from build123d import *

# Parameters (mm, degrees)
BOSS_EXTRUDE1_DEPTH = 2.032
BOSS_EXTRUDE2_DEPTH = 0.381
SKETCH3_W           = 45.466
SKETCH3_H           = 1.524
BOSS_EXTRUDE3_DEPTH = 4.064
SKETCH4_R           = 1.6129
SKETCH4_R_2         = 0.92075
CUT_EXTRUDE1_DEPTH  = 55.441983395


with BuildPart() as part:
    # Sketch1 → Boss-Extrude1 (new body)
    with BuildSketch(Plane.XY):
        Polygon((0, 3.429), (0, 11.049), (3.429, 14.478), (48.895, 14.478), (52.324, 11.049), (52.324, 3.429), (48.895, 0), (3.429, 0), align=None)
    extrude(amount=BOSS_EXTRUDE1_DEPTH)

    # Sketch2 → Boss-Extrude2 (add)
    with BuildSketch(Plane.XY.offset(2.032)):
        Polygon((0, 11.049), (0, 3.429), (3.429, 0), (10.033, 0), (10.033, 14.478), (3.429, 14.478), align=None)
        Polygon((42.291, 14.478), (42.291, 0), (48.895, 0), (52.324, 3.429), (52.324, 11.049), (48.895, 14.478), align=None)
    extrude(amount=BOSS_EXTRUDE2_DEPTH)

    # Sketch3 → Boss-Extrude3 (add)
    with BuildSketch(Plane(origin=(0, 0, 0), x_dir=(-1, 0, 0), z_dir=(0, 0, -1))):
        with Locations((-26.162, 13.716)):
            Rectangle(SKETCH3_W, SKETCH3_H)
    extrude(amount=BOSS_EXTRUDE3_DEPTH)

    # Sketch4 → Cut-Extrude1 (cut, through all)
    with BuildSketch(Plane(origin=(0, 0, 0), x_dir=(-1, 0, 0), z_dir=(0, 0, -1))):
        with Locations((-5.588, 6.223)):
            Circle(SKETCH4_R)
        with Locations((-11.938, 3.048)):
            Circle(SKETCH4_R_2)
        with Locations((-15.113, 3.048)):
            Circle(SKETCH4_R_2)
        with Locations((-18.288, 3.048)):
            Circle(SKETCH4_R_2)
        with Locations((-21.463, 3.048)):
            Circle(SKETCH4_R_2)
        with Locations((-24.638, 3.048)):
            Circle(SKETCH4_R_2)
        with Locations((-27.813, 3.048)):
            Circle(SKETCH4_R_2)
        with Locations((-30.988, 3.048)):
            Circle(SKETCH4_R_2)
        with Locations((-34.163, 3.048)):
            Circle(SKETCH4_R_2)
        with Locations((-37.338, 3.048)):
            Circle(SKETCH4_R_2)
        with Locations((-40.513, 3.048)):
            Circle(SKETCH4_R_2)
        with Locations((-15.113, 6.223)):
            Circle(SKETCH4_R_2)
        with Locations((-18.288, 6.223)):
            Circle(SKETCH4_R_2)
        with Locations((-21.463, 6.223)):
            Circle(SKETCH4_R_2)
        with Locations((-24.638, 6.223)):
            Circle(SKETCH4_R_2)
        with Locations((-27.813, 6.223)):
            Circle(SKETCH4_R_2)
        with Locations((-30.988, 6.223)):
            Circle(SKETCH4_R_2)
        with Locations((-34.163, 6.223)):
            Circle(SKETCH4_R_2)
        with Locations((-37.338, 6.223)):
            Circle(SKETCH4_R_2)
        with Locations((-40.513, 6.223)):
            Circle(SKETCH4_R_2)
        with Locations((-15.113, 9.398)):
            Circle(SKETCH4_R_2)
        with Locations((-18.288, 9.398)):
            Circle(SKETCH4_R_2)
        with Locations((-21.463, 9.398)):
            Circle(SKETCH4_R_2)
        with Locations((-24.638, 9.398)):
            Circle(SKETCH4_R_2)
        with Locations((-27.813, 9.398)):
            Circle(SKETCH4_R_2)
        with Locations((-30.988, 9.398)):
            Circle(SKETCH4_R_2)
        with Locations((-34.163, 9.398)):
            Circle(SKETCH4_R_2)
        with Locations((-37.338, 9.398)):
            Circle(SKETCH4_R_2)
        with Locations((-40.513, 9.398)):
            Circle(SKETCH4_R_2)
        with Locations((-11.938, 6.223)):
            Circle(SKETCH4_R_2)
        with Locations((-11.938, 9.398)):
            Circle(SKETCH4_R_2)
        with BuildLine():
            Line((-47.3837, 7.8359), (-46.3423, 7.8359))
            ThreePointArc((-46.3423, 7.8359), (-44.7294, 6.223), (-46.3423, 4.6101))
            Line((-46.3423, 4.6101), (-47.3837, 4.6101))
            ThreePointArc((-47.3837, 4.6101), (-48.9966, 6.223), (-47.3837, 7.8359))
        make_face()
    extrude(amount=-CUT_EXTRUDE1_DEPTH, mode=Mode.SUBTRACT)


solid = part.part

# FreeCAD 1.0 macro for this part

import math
import FreeCAD as App
import Part
import Sketcher
Q = App.Units.Quantity


def add_polygon(sketch, points):
    """Adds a closed chain of lines whose ends are joined by coincident constraints."""
    first, n = sketch.GeometryCount, len(points)
    for a, b in zip(points, points[1:] + points[:1]):
        sketch.addGeometry(Part.LineSegment(App.Vector(*a, 0), App.Vector(*b, 0)), False)
    for i in range(n):
        sketch.addConstraint(Sketcher.Constraint("Coincident", first + i, 2, first + (i + 1) % n, 1))

doc = App.newDocument("Part")
body = doc.addObject("PartDesign::Body", "Body")

# Sketch on XY plane
sketch1 = body.newObject("Sketcher::SketchObject", "Sketch")
sketch1.AttachmentSupport = (doc.getObject("XY_Plane"), [""])
sketch1.MapMode = "FlatFace"
add_polygon(sketch1, [(0, 11.049), (0, 3.429), (3.429, 0), (48.895, 0), (52.324, 3.429), (52.324, 11.049), (48.895, 14.478), (3.429, 14.478)])  # lines 0-7
sketch1.addConstraint([
    Sketcher.Constraint("Vertical", 0),
    Sketcher.Constraint("Horizontal", 2),
    Sketcher.Constraint("Vertical", 4),
    Sketcher.Constraint("Horizontal", 6),
    Sketcher.Constraint("PointOnObject", 0, 2, -2),
    Sketcher.Constraint("PointOnObject", 1, 2, -1),
    Sketcher.Constraint("Perpendicular", 1, 3),
    Sketcher.Constraint("Perpendicular", 3, 5),
    Sketcher.Constraint("Perpendicular", 5, 7),
    Sketcher.Constraint("Horizontal", 0, 2, 3, 2),
    Sketcher.Constraint("Horizontal", 4, 2, 7, 2),
    Sketcher.Constraint("Vertical", 2, 2, 5, 2),
    Sketcher.Constraint("Vertical", 1, 2, 6, 2),
    Sketcher.Constraint("DistanceY", 0, 2, 0, 1, Q("0.3 in")),
    Sketcher.Constraint("DistanceX", 2, 1, 2, 2, Q("1.79 in")),
    Sketcher.Constraint("DistanceX", -1, 1, 3, 2, Q("2.06 in")),
])
pad1 = body.newObject("PartDesign::Pad", "Pad")
pad1.Profile = sketch1
pad1.Length = Q("0.08 in")

# Sketch on XY plane
sketch2 = body.newObject("Sketcher::SketchObject", "Sketch001")
sketch2.AttachmentSupport = (doc.getObject("XY_Plane"), [""])
sketch2.MapMode = "FlatFace"
sketch2.AttachmentOffset = App.Placement(App.Vector(0, 0, 0.08 * 25.4), App.Rotation())
add_polygon(sketch2, [(0, 11.049), (0, 3.429), (3.429, 0), (10.033, 0), (10.033, 14.478), (3.429, 14.478)])  # lines 0-5
add_polygon(sketch2, [(42.291, 14.478), (42.291, 0), (48.895, 0), (52.324, 3.429), (52.324, 11.049), (48.895, 14.478)])  # lines 6-11
sketch2.addConstraint([
    Sketcher.Constraint("Vertical", 0),
    Sketcher.Constraint("Horizontal", 2),
    Sketcher.Constraint("Vertical", 3),
    Sketcher.Constraint("Horizontal", 4),
    Sketcher.Constraint("Vertical", 6),
    Sketcher.Constraint("Horizontal", 7),
    Sketcher.Constraint("Vertical", 9),
    Sketcher.Constraint("Horizontal", 11),
    Sketcher.Constraint("PointOnObject", 0, 2, -2),
    Sketcher.Constraint("PointOnObject", 1, 2, -1),
    Sketcher.Constraint("PointOnObject", 6, 2, -1),
    Sketcher.Constraint("Perpendicular", 1, 5),
    Sketcher.Constraint("Parallel", 5, 8),
    Sketcher.Constraint("Perpendicular", 8, 10),
    Sketcher.Constraint("Horizontal", 0, 2, 8, 2),
    Sketcher.Constraint("Horizontal", 5, 2, 9, 2),
    Sketcher.Constraint("Horizontal", 4, 2, 10, 2),
    Sketcher.Constraint("Vertical", 1, 2, 4, 2),
    Sketcher.Constraint("Vertical", 7, 2, 10, 2),
    Sketcher.Constraint("Equal", 4, 7),
    Sketcher.Constraint("DistanceY", 0, 2, 0, 1, Q("0.3 in")),
    Sketcher.Constraint("DistanceX", 2, 1, 2, 2, Q("0.26 in")),
    Sketcher.Constraint("DistanceY", 3, 1, 3, 2, Q("0.57 in")),
    Sketcher.Constraint("DistanceX", -1, 1, 8, 2, Q("2.06 in")),
])
pad2 = body.newObject("PartDesign::Pad", "Pad001")
pad2.Profile = sketch2
pad2.Length = Q("0.015 in")

# Sketch on XY plane
sketch3 = body.newObject("Sketcher::SketchObject", "Sketch002")
sketch3.AttachmentSupport = (doc.getObject("XY_Plane"), [""])
sketch3.MapMode = "FlatFace"
add_polygon(sketch3, [(48.895, 14.478), (48.895, 12.954), (3.429, 12.954), (3.429, 14.478)])  # lines 0-3
sketch3.addConstraint([
    Sketcher.Constraint("Vertical", 0),
    Sketcher.Constraint("Horizontal", 1),
    Sketcher.Constraint("Vertical", 2),
    Sketcher.Constraint("Horizontal", 3),
    Sketcher.Constraint("DistanceX", 1, 2, 1, 1, Q("1.79 in")),
    Sketcher.Constraint("DistanceY", 0, 2, 0, 1, Q("0.06 in")),
    Sketcher.Constraint("DistanceY", -1, 1, 0, 2, Q("0.51 in")),
    Sketcher.Constraint("DistanceX", -1, 1, 0, 2, Q("1.925 in")),
])
pad3 = body.newObject("PartDesign::Pad", "Pad002")
pad3.Profile = sketch3
pad3.Length = Q("0.16 in")
pad3.Reversed = True

# Sketch on XY plane
sketch4 = body.newObject("Sketcher::SketchObject", "Sketch003")
sketch4.AttachmentSupport = (doc.getObject("XY_Plane"), [""])
sketch4.MapMode = "FlatFace"
sketch4.addGeometry([
    Part.Circle(App.Vector(5.588, 6.223, 0), App.Vector(0, 0, 1), 1.6129),  # 0
    Part.Circle(App.Vector(11.938, 3.048, 0), App.Vector(0, 0, 1), 0.92075),  # 1
    Part.Circle(App.Vector(15.113, 3.048, 0), App.Vector(0, 0, 1), 0.92075),  # 2
    Part.Circle(App.Vector(18.288, 3.048, 0), App.Vector(0, 0, 1), 0.92075),  # 3
    Part.Circle(App.Vector(21.463, 3.048, 0), App.Vector(0, 0, 1), 0.92075),  # 4
    Part.Circle(App.Vector(24.638, 3.048, 0), App.Vector(0, 0, 1), 0.92075),  # 5
    Part.Circle(App.Vector(27.813, 3.048, 0), App.Vector(0, 0, 1), 0.92075),  # 6
    Part.Circle(App.Vector(30.988, 3.048, 0), App.Vector(0, 0, 1), 0.92075),  # 7
    Part.Circle(App.Vector(34.163, 3.048, 0), App.Vector(0, 0, 1), 0.92075),  # 8
    Part.Circle(App.Vector(37.338, 3.048, 0), App.Vector(0, 0, 1), 0.92075),  # 9
    Part.Circle(App.Vector(40.513, 3.048, 0), App.Vector(0, 0, 1), 0.92075),  # 10
    Part.Circle(App.Vector(15.113, 6.223, 0), App.Vector(0, 0, 1), 0.92075),  # 11
    Part.Circle(App.Vector(18.288, 6.223, 0), App.Vector(0, 0, 1), 0.92075),  # 12
    Part.Circle(App.Vector(21.463, 6.223, 0), App.Vector(0, 0, 1), 0.92075),  # 13
    Part.Circle(App.Vector(24.638, 6.223, 0), App.Vector(0, 0, 1), 0.92075),  # 14
    Part.Circle(App.Vector(27.813, 6.223, 0), App.Vector(0, 0, 1), 0.92075),  # 15
    Part.Circle(App.Vector(30.988, 6.223, 0), App.Vector(0, 0, 1), 0.92075),  # 16
    Part.Circle(App.Vector(34.163, 6.223, 0), App.Vector(0, 0, 1), 0.92075),  # 17
    Part.Circle(App.Vector(37.338, 6.223, 0), App.Vector(0, 0, 1), 0.92075),  # 18
    Part.Circle(App.Vector(40.513, 6.223, 0), App.Vector(0, 0, 1), 0.92075),  # 19
    Part.Circle(App.Vector(15.113, 9.398, 0), App.Vector(0, 0, 1), 0.92075),  # 20
    Part.Circle(App.Vector(18.288, 9.398, 0), App.Vector(0, 0, 1), 0.92075),  # 21
    Part.Circle(App.Vector(21.463, 9.398, 0), App.Vector(0, 0, 1), 0.92075),  # 22
    Part.Circle(App.Vector(24.638, 9.398, 0), App.Vector(0, 0, 1), 0.92075),  # 23
    Part.Circle(App.Vector(27.813, 9.398, 0), App.Vector(0, 0, 1), 0.92075),  # 24
    Part.Circle(App.Vector(30.988, 9.398, 0), App.Vector(0, 0, 1), 0.92075),  # 25
    Part.Circle(App.Vector(34.163, 9.398, 0), App.Vector(0, 0, 1), 0.92075),  # 26
    Part.Circle(App.Vector(37.338, 9.398, 0), App.Vector(0, 0, 1), 0.92075),  # 27
    Part.Circle(App.Vector(40.513, 9.398, 0), App.Vector(0, 0, 1), 0.92075),  # 28
    Part.Circle(App.Vector(11.938, 6.223, 0), App.Vector(0, 0, 1), 0.92075),  # 29
    Part.Circle(App.Vector(11.938, 9.398, 0), App.Vector(0, 0, 1), 0.92075),  # 30
    Part.LineSegment(App.Vector(46.3423, 7.8359, 0), App.Vector(47.3837, 7.8359, 0)),  # 31
    Part.ArcOfCircle(Part.Circle(App.Vector(47.3837, 6.223, 0), App.Vector(0, 0, 1), 1.6129), math.radians(-90), math.radians(90)),  # 32
    Part.LineSegment(App.Vector(47.3837, 4.6101, 0), App.Vector(46.3423, 4.6101, 0)),  # 33
    Part.ArcOfCircle(Part.Circle(App.Vector(46.3423, 6.223, 0), App.Vector(0, 0, 1), 1.6129), math.radians(90), math.radians(270)),  # 34
], False)
sketch4.addConstraint([
    Sketcher.Constraint("Tangent", 31, 2, 32, 2),
    Sketcher.Constraint("Tangent", 32, 1, 33, 1),
    Sketcher.Constraint("Tangent", 33, 2, 34, 2),
    Sketcher.Constraint("Tangent", 34, 1, 31, 1),
    Sketcher.Constraint("Horizontal", 31),
    Sketcher.Constraint("Horizontal", 33),
    Sketcher.Constraint("Equal", 1, 2),
    Sketcher.Constraint("Equal", 2, 3),
    Sketcher.Constraint("Equal", 3, 4),
    Sketcher.Constraint("Equal", 4, 5),
    Sketcher.Constraint("Equal", 5, 6),
    Sketcher.Constraint("Equal", 6, 7),
    Sketcher.Constraint("Equal", 7, 8),
    Sketcher.Constraint("Equal", 8, 9),
    Sketcher.Constraint("Equal", 9, 10),
    Sketcher.Constraint("Equal", 10, 11),
    Sketcher.Constraint("Equal", 11, 12),
    Sketcher.Constraint("Equal", 12, 13),
    Sketcher.Constraint("Equal", 13, 14),
    Sketcher.Constraint("Equal", 14, 15),
    Sketcher.Constraint("Equal", 15, 16),
    Sketcher.Constraint("Equal", 16, 17),
    Sketcher.Constraint("Equal", 17, 18),
    Sketcher.Constraint("Equal", 18, 19),
    Sketcher.Constraint("Equal", 19, 20),
    Sketcher.Constraint("Equal", 20, 21),
    Sketcher.Constraint("Equal", 21, 22),
    Sketcher.Constraint("Equal", 22, 23),
    Sketcher.Constraint("Equal", 23, 24),
    Sketcher.Constraint("Equal", 24, 25),
    Sketcher.Constraint("Equal", 25, 26),
    Sketcher.Constraint("Equal", 26, 27),
    Sketcher.Constraint("Equal", 27, 28),
    Sketcher.Constraint("Equal", 28, 29),
    Sketcher.Constraint("Equal", 29, 30),
    Sketcher.Constraint("Equal", 0, 32),
    Sketcher.Constraint("Horizontal", 1, 3, 2, 3),
    Sketcher.Constraint("Horizontal", 2, 3, 3, 3),
    Sketcher.Constraint("Horizontal", 3, 3, 4, 3),
    Sketcher.Constraint("Horizontal", 4, 3, 5, 3),
    Sketcher.Constraint("Horizontal", 5, 3, 6, 3),
    Sketcher.Constraint("Horizontal", 6, 3, 7, 3),
    Sketcher.Constraint("Horizontal", 7, 3, 8, 3),
    Sketcher.Constraint("Horizontal", 8, 3, 9, 3),
    Sketcher.Constraint("Horizontal", 9, 3, 10, 3),
    Sketcher.Constraint("Horizontal", 0, 3, 11, 3),
    Sketcher.Constraint("Horizontal", 11, 3, 12, 3),
    Sketcher.Constraint("Horizontal", 12, 3, 13, 3),
    Sketcher.Constraint("Horizontal", 13, 3, 14, 3),
    Sketcher.Constraint("Horizontal", 14, 3, 15, 3),
    Sketcher.Constraint("Horizontal", 15, 3, 16, 3),
    Sketcher.Constraint("Horizontal", 16, 3, 17, 3),
    Sketcher.Constraint("Horizontal", 17, 3, 18, 3),
    Sketcher.Constraint("Horizontal", 18, 3, 19, 3),
    Sketcher.Constraint("Horizontal", 20, 3, 21, 3),
    Sketcher.Constraint("Horizontal", 21, 3, 22, 3),
    Sketcher.Constraint("Horizontal", 22, 3, 23, 3),
    Sketcher.Constraint("Horizontal", 23, 3, 24, 3),
    Sketcher.Constraint("Horizontal", 24, 3, 25, 3),
    Sketcher.Constraint("Horizontal", 25, 3, 26, 3),
    Sketcher.Constraint("Horizontal", 26, 3, 27, 3),
    Sketcher.Constraint("Horizontal", 27, 3, 28, 3),
    Sketcher.Constraint("Horizontal", 19, 3, 29, 3),
    Sketcher.Constraint("Horizontal", 28, 3, 30, 3),
    Sketcher.Constraint("Horizontal", 29, 3, 32, 3),
    Sketcher.Constraint("Vertical", 2, 3, 11, 3),
    Sketcher.Constraint("Vertical", 3, 3, 12, 3),
    Sketcher.Constraint("Vertical", 4, 3, 13, 3),
    Sketcher.Constraint("Vertical", 5, 3, 14, 3),
    Sketcher.Constraint("Vertical", 6, 3, 15, 3),
    Sketcher.Constraint("Vertical", 7, 3, 16, 3),
    Sketcher.Constraint("Vertical", 8, 3, 17, 3),
    Sketcher.Constraint("Vertical", 9, 3, 18, 3),
    Sketcher.Constraint("Vertical", 10, 3, 19, 3),
    Sketcher.Constraint("Vertical", 11, 3, 20, 3),
    Sketcher.Constraint("Vertical", 12, 3, 21, 3),
    Sketcher.Constraint("Vertical", 13, 3, 22, 3),
    Sketcher.Constraint("Vertical", 14, 3, 23, 3),
    Sketcher.Constraint("Vertical", 15, 3, 24, 3),
    Sketcher.Constraint("Vertical", 16, 3, 25, 3),
    Sketcher.Constraint("Vertical", 17, 3, 26, 3),
    Sketcher.Constraint("Vertical", 18, 3, 27, 3),
    Sketcher.Constraint("Vertical", 19, 3, 28, 3),
    Sketcher.Constraint("Vertical", 1, 3, 29, 3),
    Sketcher.Constraint("Vertical", 29, 3, 30, 3),
    Sketcher.Constraint("Diameter", 0, Q("0.127 in")),
    Sketcher.Constraint("Diameter", 1, Q("0.0725 in")),
    Sketcher.Constraint("DistanceX", 0, 3, 3, 3, Q("0.5 in")),
    Sketcher.Constraint("DistanceX", 1, 3, 5, 3, Q("0.5 in")),
    Sketcher.Constraint("DistanceX", 2, 3, 6, 3, Q("0.5 in")),
    Sketcher.Constraint("DistanceX", 3, 3, 7, 3, Q("0.5 in")),
    Sketcher.Constraint("DistanceX", 4, 3, 8, 3, Q("0.5 in")),
    Sketcher.Constraint("DistanceX", 5, 3, 9, 3, Q("0.5 in")),
    Sketcher.Constraint("DistanceX", 6, 3, 10, 3, Q("0.5 in")),
    Sketcher.Constraint("DistanceX", 31, 1, 31, 2, Q("0.041 in")),
    Sketcher.Constraint("DistanceX", -1, 1, 0, 3, Q("0.22 in")),
    Sketcher.Constraint("DistanceX", -1, 1, 1, 3, Q("0.47 in")),
    Sketcher.Constraint("DistanceY", -1, 1, 1, 3, Q("0.12 in")),
    Sketcher.Constraint("DistanceY", -1, 1, 20, 3, Q("0.37 in")),
    Sketcher.Constraint("DistanceX", 2, 3, 4, 3, Q("0.25 in")),
    Sketcher.Constraint("DistanceY", -1, 1, 0, 3, Q("0.245 in")),
    Sketcher.Constraint("DistanceX", -1, 1, 2, 3, Q("0.595 in")),
    Sketcher.Constraint("DistanceX", -1, 1, 32, 3, Q("1.8655 in")),
])
pocket1 = body.newObject("PartDesign::Pocket", "Pocket")
pocket1.Profile = sketch4
pocket1.Type = "ThroughAll"
pocket1.Reversed = True

doc.recompute()
